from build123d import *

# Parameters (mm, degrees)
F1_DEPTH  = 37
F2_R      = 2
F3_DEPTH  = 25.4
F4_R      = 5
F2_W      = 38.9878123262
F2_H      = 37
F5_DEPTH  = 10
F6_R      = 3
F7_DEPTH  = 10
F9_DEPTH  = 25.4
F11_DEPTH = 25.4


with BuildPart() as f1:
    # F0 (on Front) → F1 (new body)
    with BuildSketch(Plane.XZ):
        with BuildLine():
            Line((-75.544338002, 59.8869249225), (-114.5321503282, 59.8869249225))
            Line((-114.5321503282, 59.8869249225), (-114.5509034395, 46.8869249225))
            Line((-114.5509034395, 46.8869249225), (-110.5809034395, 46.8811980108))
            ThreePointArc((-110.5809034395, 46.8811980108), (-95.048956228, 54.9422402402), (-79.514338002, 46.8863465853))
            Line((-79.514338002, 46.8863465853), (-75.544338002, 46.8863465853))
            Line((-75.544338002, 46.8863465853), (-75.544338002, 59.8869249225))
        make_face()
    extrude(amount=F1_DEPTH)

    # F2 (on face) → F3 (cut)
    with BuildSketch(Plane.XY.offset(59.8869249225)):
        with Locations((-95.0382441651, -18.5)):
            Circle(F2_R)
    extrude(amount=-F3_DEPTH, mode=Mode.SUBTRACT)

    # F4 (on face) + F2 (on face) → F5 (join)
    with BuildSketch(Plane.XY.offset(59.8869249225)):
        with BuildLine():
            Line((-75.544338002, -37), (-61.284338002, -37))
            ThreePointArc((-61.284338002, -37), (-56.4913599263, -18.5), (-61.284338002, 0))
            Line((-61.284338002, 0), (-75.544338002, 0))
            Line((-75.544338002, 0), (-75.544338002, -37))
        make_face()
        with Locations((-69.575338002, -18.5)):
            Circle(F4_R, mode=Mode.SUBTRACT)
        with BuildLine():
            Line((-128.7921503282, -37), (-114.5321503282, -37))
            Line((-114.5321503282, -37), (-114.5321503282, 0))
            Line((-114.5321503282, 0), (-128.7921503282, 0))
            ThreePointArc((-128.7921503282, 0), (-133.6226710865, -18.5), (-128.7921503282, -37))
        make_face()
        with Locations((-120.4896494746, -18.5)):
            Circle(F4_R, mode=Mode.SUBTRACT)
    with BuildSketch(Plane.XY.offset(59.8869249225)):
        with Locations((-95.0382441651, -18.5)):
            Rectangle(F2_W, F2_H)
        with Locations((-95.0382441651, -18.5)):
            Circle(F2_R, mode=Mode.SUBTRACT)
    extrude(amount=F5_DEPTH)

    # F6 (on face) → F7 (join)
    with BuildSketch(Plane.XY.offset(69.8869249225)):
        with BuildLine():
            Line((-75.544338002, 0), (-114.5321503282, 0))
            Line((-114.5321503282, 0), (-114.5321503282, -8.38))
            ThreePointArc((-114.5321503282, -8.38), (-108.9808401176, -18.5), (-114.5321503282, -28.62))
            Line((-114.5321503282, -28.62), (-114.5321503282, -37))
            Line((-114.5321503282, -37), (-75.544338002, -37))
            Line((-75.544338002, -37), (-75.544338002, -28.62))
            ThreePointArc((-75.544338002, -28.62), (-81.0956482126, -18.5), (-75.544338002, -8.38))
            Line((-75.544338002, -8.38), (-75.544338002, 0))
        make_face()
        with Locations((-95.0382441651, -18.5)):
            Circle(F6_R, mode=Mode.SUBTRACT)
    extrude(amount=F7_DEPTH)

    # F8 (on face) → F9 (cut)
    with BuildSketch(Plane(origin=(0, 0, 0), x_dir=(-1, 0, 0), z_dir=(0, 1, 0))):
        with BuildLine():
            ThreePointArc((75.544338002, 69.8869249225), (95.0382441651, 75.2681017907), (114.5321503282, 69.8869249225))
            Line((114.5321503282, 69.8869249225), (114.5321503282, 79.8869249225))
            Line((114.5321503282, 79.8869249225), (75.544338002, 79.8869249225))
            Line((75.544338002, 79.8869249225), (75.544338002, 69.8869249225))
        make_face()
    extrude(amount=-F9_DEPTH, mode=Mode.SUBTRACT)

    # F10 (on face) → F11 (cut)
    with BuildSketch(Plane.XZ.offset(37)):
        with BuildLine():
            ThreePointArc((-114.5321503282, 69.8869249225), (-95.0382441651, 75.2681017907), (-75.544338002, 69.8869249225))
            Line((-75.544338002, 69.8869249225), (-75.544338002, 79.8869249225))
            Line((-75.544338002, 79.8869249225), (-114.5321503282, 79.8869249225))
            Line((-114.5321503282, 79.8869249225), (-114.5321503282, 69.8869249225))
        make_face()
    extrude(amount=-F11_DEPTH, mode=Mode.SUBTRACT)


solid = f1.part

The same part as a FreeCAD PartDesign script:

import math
import FreeCAD as App
import Part
import Sketcher
from FreeCAD import Vector
Q = App.Units.Quantity

doc = App.newDocument("Part")
body = doc.addObject("PartDesign::Body", "Body")

# Sketch on XZ plane
sketch1 = body.newObject("Sketcher::SketchObject", "Sketch")
sketch1.AttachmentSupport = (doc.getObject("XZ_Plane"), [""])
sketch1.MapMode = "FlatFace"
sketch1.addGeometry([
    Part.LineSegment(Vector(-75.5, 59.9, 0), Vector(-114.5, 59.9, 0)),  # 0
    Part.LineSegment(Vector(-114.5, 59.9, 0), Vector(-114.6, 46.9, 0)),  # 1
    Part.LineSegment(Vector(-114.6, 46.9, 0), Vector(-110.6, 46.9, 0)),  # 2
    Part.ArcOfCircle(Part.Circle(Vector(-95, 35.9, 0), Vector(0, 0, 1), 19), math.radians(35), math.radians(145)),  # 3
    Part.LineSegment(Vector(-79.5, 46.9, 0), Vector(-75.5, 46.9, 0)),  # 4
    Part.LineSegment(Vector(-75.5, 46.9, 0), Vector(-75.5, 59.9, 0)),  # 5
], False)
sketch1.addConstraint([
    Sketcher.Constraint("Coincident", 0, 2, 1, 1),
    Sketcher.Constraint("Coincident", 1, 2, 2, 1),
    Sketcher.Constraint("Coincident", 2, 2, 3, 2),
    Sketcher.Constraint("Coincident", 3, 1, 4, 1),
    Sketcher.Constraint("Coincident", 4, 2, 5, 1),
    Sketcher.Constraint("Coincident", 5, 2, 0, 1),
    Sketcher.Constraint("Horizontal", 0),
    Sketcher.Constraint("Horizontal", 4),
    Sketcher.Constraint("Vertical", 5),
    Sketcher.Constraint("Perpendicular", 1, 2),
    Sketcher.Constraint("Radius", 3, Q("19 mm")),
    Sketcher.Constraint("DistanceY", 1, 2, 0, 2, Q("13 mm")),
    Sketcher.Constraint("DistanceX", 4, 1, 4, 2, Q("3.97 mm")),
    Sketcher.Constraint("DistanceX", 1, 2, 2, 2, Q("3.97 mm")),
    Sketcher.Constraint("DistanceY", 5, 1, 5, 2, Q("13.000578 mm")),
    Sketcher.Constraint("DistanceY", -1, 1, 2, 2, Q("46.881198 mm")),
    Sketcher.Constraint("DistanceX", 0, 2, 0, 1, Q("38.987812 mm")),
    Sketcher.Constraint("DistanceY", -1, 1, 3, 3, Q("35.942241 mm")),
    Sketcher.Constraint("DistanceX", 0, 2, -1, 1, Q("114.53215 mm")),
])
pad1 = body.newObject("PartDesign::Pad", "Pad")
pad1.Profile = sketch1
pad1.Length = 37

# Sketch on XY plane
sketch2 = body.newObject("Sketcher::SketchObject", "Sketch001")
sketch2.AttachmentSupport = (doc.getObject("XY_Plane"), [""])
sketch2.MapMode = "FlatFace"
sketch2.AttachmentOffset = App.Placement(Vector(0, 0, 59.886925), App.Rotation())
sketch2.addGeometry(Part.Circle(Vector(-95, -18.5, 0), Vector(0, 0, 1), 2), False)
sketch2.addConstraint([
    Sketcher.Constraint("Diameter", 0, Q("4 mm")),
    Sketcher.Constraint("DistanceY", 0, 3, -1, 1, Q("18.5 mm")),
    Sketcher.Constraint("DistanceX", 0, 3, -1, 1, Q("95.038244 mm")),
])
pocket1 = body.newObject("PartDesign::Pocket", "Pocket")
pocket1.Profile = sketch2
pocket1.Length = 25.4

# Sketch on XY plane
sketch3 = body.newObject("Sketcher::SketchObject", "Sketch002")
sketch3.AttachmentSupport = (doc.getObject("XY_Plane"), [""])
sketch3.MapMode = "FlatFace"
sketch3.AttachmentOffset = App.Placement(Vector(0, 0, 59.886925), App.Rotation())
sketch3.addGeometry([
    Part.ArcOfCircle(Part.Circle(Vector(-94.6, -18.5, 0), Vector(0, 0, 1), 38.1), math.radians(-29), math.radians(29)),  # 0
    Part.LineSegment(Vector(-61.3, 0, 0), Vector(-128.8, 0, 0)),  # 1
    Part.ArcOfCircle(Part.Circle(Vector(-95.8, -18.5, 0), Vector(0, 0, 1), 37.8), math.radians(151), math.radians(209)),  # 2
    Part.LineSegment(Vector(-128.8, -37, 0), Vector(-61.3, -37, 0)),  # 3
    Part.Circle(Vector(-69.6, -18.5, 0), Vector(0, 0, 1), 5),  # 4
    Part.Circle(Vector(-95, -18.5, 0), Vector(0, 0, 1), 2),  # 5
    Part.Circle(Vector(-120.5, -18.5, 0), Vector(0, 0, 1), 5),  # 6
], False)
sketch3.addConstraint([
    Sketcher.Constraint("Coincident", 0, 2, 1, 1),
    Sketcher.Constraint("Coincident", 1, 2, 2, 1),
    Sketcher.Constraint("Coincident", 2, 2, 3, 1),
    Sketcher.Constraint("Coincident", 3, 2, 0, 1),
    Sketcher.Constraint("Horizontal", 1),
    Sketcher.Constraint("Horizontal", 3),
    Sketcher.Constraint("Equal", 4, 6),
    Sketcher.Constraint("PointOnObject", 0, 2, -1),
    Sketcher.Constraint("Horizontal", 0, 3, 2, 3),
    Sketcher.Constraint("Horizontal", 2, 3, 4, 3),
    Sketcher.Constraint("Horizontal", 4, 3, 5, 3),
    Sketcher.Constraint("Horizontal", 5, 3, 6, 3),
    Sketcher.Constraint("Vertical", 1, 2, 2, 2),
    Sketcher.Constraint("Diameter", 4, Q("10 mm")),
    Sketcher.Constraint("Diameter", 5, Q("4 mm")),
    Sketcher.Constraint("DistanceY", 2, 2, -1, 1, Q("37 mm")),
    Sketcher.Constraint("Radius", 0, Q("38.099761 mm")),
    Sketcher.Constraint("Radius", 2, Q("37.841047 mm")),
    Sketcher.Constraint("DistanceX", 4, 3, 0, 2, Q("8.291 mm")),
    Sketcher.Constraint("DistanceX", 1, 2, 6, 3, Q("8.302501 mm")),
    Sketcher.Constraint("DistanceX", 1, 2, 1, 1, Q("67.507812 mm")),
    Sketcher.Constraint("DistanceX", 0, 3, -1, 1, Q("94.591121 mm")),
    Sketcher.Constraint("DistanceX", 2, 3, 5, 3, Q("0.743379 mm")),
])
pad2 = body.newObject("PartDesign::Pad", "Pad001")
pad2.Profile = sketch3
pad2.Length = 10

# Sketch on XY plane
sketch4 = body.newObject("Sketcher::SketchObject", "Sketch003")
sketch4.AttachmentSupport = (doc.getObject("XY_Plane"), [""])
sketch4.MapMode = "FlatFace"
sketch4.AttachmentOffset = App.Placement(Vector(0, 0, 69.886925), App.Rotation())
sketch4.addGeometry([
    Part.LineSegment(Vector(-75.5, 0, 0), Vector(-114.5, 0, 0)),  # 0
    Part.LineSegment(Vector(-114.5, 0, 0), Vector(-114.5, -8.4, 0)),  # 1
    Part.ArcOfCircle(Part.Circle(Vector(-121, -18.5, 0), Vector(0, 0, 1), 12), math.radians(-57), math.radians(57)),  # 2
    Part.LineSegment(Vector(-114.5, -28.6, 0), Vector(-114.5, -37, 0)),  # 3
    Part.LineSegment(Vector(-114.5, -37, 0), Vector(-75.5, -37, 0)),  # 4
    Part.LineSegment(Vector(-75.5, -37, 0), Vector(-75.5, -28.6, 0)),  # 5
    Part.ArcOfCircle(Part.Circle(Vector(-69.1, -18.5, 0), Vector(0, 0, 1), 12), math.radians(123), math.radians(237)),  # 6
    Part.LineSegment(Vector(-75.5, -8.4, 0), Vector(-75.5, 0, 0)),  # 7
    Part.Circle(Vector(-95, -18.5, 0), Vector(0, 0, 1), 3),  # 8
], False)
sketch4.addConstraint([
    Sketcher.Constraint("Coincident", 0, 2, 1, 1),
    Sketcher.Constraint("Coincident", 1, 2, 2, 2),
    Sketcher.Constraint("Coincident", 2, 1, 3, 1),
    Sketcher.Constraint("Coincident", 3, 2, 4, 1),
    Sketcher.Constraint("Coincident", 4, 2, 5, 1),
    Sketcher.Constraint("Coincident", 5, 2, 6, 2),
    Sketcher.Constraint("Coincident", 6, 1, 7, 1),
    Sketcher.Constraint("Coincident", 7, 2, 0, 1),
    Sketcher.Constraint("Horizontal", 0),
    Sketcher.Constraint("Vertical", 1),
    Sketcher.Constraint("Vertical", 3),
    Sketcher.Constraint("Horizontal", 4),
    Sketcher.Constraint("Vertical", 5),
    Sketcher.Constraint("Vertical", 7),
    Sketcher.Constraint("Equal", 2, 6),
    Sketcher.Constraint("PointOnObject", 0, 2, -1),
    Sketcher.Constraint("Horizontal", 2, 3, 6, 3),
    Sketcher.Constraint("Horizontal", 6, 3, 8, 3),
    Sketcher.Constraint("Horizontal", 2, 1, 5, 2),
    Sketcher.Constraint("Horizontal", 1, 2, 6, 1),
    Sketcher.Constraint("Vertical", 1, 2, 2, 1),
    Sketcher.Constraint("Equal", 1, 3),
    Sketcher.Constraint("Diameter", 8, Q("6 mm")),
    Sketcher.Constraint("Radius", 2, Q("12 mm")),
    Sketcher.Constraint("DistanceY", 3, 2, -1, 1, Q("37 mm")),
    Sketcher.Constraint("DistanceY", 1, 2, 1, 1, Q("8.38 mm")),
    Sketcher.Constraint("DistanceX", 0, 2, 0, 1, Q("38.987812 mm")),
    Sketcher.Constraint("DistanceX", 2, 3, -1, 1, Q("120.98084 mm")),
    Sketcher.Constraint("DistanceX", 8, 3, -1, 1, Q("95.038244 mm")),
])
pad3 = body.newObject("PartDesign::Pad", "Pad002")
pad3.Profile = sketch4
pad3.Length = 10

# Sketch on XZ plane
sketch5 = body.newObject("Sketcher::SketchObject", "Sketch004")
sketch5.AttachmentSupport = (doc.getObject("XZ_Plane"), [""])
sketch5.MapMode = "FlatFace"
sketch5.addGeometry([
    Part.ArcOfCircle(Part.Circle(Vector(-95, 37, 0), Vector(0, 0, 1), 38), math.radians(59), math.radians(121)),
    Part.LineSegment(Vector(-115, 70, 0), Vector(-115, 80, 0)),
    Part.LineSegment(Vector(-115, 80, 0), Vector(-76, 80, 0)),
    Part.LineSegment(Vector(-76, 80, 0), Vector(-76, 70, 0)),
], False)
sketch5.addConstraint([
    Sketcher.Constraint("Coincident", 0, 2, 1, 1),
    Sketcher.Constraint("Coincident", 1, 2, 2, 1),
    Sketcher.Constraint("Coincident", 2, 2, 3, 1),
    Sketcher.Constraint("Coincident", 3, 2, 0, 1),
    Sketcher.Constraint("Vertical", 1),
    Sketcher.Constraint("Horizontal", 2),
    Sketcher.Constraint("Vertical", 3),
    Sketcher.Constraint("Horizontal", 0, 2, 3, 2),
    Sketcher.Constraint("Radius", 0, Q("38 mm")),
    Sketcher.Constraint("DistanceY", 1, 1, 1, 2, Q("10 mm")),
    Sketcher.Constraint("DistanceY", -1, 1, 0, 3, Q("37.268102 mm")),
    Sketcher.Constraint("DistanceX", 2, 1, 2, 2, Q("38.987812 mm")),
    Sketcher.Constraint("DistanceX", 0, 2, -1, 1, Q("114.53215 mm")),
])
pocket2 = body.newObject("PartDesign::Pocket", "Pocket001")
pocket2.Profile = sketch5
pocket2.Length = 25.4
pocket2.Reversed = True

# Sketch on XZ plane
sketch6 = body.newObject("Sketcher::SketchObject", "Sketch005")
sketch6.AttachmentSupport = (doc.getObject("XZ_Plane"), [""])
sketch6.MapMode = "FlatFace"
sketch6.AttachmentOffset = App.Placement(Vector(0, 0, 37), App.Rotation())
sketch6.addGeometry([
    Part.ArcOfCircle(Part.Circle(Vector(-95, 37, 0), Vector(0, 0, 1), 38), math.radians(59), math.radians(121)),
    Part.LineSegment(Vector(-76, 70, 0), Vector(-76, 80, 0)),
    Part.LineSegment(Vector(-76, 80, 0), Vector(-115, 80, 0)),
    Part.LineSegment(Vector(-115, 80, 0), Vector(-115, 70, 0)),
], False)
sketch6.addConstraint([
    Sketcher.Constraint("Coincident", 0, 1, 1, 1),
    Sketcher.Constraint("Coincident", 1, 2, 2, 1),
    Sketcher.Constraint("Coincident", 2, 2, 3, 1),
    Sketcher.Constraint("Coincident", 3, 2, 0, 2),
    Sketcher.Constraint("Vertical", 1),
    Sketcher.Constraint("Horizontal", 2),
    Sketcher.Constraint("Vertical", 3),
    Sketcher.Constraint("Horizontal", 0, 1, 3, 2),
    Sketcher.Constraint("Radius", 0, Q("38 mm")),
    Sketcher.Constraint("DistanceY", 1, 1, 1, 2, Q("10 mm")),
    Sketcher.Constraint("DistanceY", -1, 1, 0, 3, Q("37.268102 mm")),
    Sketcher.Constraint("DistanceX", 2, 2, 2, 1, Q("38.987812 mm")),
    Sketcher.Constraint("DistanceX", 0, 1, -1, 1, Q("75.544338 mm")),
])
pocket3 = body.newObject("PartDesign::Pocket", "Pocket002")
pocket3.Profile = sketch6
pocket3.Length = 25.4

doc.recompute()
